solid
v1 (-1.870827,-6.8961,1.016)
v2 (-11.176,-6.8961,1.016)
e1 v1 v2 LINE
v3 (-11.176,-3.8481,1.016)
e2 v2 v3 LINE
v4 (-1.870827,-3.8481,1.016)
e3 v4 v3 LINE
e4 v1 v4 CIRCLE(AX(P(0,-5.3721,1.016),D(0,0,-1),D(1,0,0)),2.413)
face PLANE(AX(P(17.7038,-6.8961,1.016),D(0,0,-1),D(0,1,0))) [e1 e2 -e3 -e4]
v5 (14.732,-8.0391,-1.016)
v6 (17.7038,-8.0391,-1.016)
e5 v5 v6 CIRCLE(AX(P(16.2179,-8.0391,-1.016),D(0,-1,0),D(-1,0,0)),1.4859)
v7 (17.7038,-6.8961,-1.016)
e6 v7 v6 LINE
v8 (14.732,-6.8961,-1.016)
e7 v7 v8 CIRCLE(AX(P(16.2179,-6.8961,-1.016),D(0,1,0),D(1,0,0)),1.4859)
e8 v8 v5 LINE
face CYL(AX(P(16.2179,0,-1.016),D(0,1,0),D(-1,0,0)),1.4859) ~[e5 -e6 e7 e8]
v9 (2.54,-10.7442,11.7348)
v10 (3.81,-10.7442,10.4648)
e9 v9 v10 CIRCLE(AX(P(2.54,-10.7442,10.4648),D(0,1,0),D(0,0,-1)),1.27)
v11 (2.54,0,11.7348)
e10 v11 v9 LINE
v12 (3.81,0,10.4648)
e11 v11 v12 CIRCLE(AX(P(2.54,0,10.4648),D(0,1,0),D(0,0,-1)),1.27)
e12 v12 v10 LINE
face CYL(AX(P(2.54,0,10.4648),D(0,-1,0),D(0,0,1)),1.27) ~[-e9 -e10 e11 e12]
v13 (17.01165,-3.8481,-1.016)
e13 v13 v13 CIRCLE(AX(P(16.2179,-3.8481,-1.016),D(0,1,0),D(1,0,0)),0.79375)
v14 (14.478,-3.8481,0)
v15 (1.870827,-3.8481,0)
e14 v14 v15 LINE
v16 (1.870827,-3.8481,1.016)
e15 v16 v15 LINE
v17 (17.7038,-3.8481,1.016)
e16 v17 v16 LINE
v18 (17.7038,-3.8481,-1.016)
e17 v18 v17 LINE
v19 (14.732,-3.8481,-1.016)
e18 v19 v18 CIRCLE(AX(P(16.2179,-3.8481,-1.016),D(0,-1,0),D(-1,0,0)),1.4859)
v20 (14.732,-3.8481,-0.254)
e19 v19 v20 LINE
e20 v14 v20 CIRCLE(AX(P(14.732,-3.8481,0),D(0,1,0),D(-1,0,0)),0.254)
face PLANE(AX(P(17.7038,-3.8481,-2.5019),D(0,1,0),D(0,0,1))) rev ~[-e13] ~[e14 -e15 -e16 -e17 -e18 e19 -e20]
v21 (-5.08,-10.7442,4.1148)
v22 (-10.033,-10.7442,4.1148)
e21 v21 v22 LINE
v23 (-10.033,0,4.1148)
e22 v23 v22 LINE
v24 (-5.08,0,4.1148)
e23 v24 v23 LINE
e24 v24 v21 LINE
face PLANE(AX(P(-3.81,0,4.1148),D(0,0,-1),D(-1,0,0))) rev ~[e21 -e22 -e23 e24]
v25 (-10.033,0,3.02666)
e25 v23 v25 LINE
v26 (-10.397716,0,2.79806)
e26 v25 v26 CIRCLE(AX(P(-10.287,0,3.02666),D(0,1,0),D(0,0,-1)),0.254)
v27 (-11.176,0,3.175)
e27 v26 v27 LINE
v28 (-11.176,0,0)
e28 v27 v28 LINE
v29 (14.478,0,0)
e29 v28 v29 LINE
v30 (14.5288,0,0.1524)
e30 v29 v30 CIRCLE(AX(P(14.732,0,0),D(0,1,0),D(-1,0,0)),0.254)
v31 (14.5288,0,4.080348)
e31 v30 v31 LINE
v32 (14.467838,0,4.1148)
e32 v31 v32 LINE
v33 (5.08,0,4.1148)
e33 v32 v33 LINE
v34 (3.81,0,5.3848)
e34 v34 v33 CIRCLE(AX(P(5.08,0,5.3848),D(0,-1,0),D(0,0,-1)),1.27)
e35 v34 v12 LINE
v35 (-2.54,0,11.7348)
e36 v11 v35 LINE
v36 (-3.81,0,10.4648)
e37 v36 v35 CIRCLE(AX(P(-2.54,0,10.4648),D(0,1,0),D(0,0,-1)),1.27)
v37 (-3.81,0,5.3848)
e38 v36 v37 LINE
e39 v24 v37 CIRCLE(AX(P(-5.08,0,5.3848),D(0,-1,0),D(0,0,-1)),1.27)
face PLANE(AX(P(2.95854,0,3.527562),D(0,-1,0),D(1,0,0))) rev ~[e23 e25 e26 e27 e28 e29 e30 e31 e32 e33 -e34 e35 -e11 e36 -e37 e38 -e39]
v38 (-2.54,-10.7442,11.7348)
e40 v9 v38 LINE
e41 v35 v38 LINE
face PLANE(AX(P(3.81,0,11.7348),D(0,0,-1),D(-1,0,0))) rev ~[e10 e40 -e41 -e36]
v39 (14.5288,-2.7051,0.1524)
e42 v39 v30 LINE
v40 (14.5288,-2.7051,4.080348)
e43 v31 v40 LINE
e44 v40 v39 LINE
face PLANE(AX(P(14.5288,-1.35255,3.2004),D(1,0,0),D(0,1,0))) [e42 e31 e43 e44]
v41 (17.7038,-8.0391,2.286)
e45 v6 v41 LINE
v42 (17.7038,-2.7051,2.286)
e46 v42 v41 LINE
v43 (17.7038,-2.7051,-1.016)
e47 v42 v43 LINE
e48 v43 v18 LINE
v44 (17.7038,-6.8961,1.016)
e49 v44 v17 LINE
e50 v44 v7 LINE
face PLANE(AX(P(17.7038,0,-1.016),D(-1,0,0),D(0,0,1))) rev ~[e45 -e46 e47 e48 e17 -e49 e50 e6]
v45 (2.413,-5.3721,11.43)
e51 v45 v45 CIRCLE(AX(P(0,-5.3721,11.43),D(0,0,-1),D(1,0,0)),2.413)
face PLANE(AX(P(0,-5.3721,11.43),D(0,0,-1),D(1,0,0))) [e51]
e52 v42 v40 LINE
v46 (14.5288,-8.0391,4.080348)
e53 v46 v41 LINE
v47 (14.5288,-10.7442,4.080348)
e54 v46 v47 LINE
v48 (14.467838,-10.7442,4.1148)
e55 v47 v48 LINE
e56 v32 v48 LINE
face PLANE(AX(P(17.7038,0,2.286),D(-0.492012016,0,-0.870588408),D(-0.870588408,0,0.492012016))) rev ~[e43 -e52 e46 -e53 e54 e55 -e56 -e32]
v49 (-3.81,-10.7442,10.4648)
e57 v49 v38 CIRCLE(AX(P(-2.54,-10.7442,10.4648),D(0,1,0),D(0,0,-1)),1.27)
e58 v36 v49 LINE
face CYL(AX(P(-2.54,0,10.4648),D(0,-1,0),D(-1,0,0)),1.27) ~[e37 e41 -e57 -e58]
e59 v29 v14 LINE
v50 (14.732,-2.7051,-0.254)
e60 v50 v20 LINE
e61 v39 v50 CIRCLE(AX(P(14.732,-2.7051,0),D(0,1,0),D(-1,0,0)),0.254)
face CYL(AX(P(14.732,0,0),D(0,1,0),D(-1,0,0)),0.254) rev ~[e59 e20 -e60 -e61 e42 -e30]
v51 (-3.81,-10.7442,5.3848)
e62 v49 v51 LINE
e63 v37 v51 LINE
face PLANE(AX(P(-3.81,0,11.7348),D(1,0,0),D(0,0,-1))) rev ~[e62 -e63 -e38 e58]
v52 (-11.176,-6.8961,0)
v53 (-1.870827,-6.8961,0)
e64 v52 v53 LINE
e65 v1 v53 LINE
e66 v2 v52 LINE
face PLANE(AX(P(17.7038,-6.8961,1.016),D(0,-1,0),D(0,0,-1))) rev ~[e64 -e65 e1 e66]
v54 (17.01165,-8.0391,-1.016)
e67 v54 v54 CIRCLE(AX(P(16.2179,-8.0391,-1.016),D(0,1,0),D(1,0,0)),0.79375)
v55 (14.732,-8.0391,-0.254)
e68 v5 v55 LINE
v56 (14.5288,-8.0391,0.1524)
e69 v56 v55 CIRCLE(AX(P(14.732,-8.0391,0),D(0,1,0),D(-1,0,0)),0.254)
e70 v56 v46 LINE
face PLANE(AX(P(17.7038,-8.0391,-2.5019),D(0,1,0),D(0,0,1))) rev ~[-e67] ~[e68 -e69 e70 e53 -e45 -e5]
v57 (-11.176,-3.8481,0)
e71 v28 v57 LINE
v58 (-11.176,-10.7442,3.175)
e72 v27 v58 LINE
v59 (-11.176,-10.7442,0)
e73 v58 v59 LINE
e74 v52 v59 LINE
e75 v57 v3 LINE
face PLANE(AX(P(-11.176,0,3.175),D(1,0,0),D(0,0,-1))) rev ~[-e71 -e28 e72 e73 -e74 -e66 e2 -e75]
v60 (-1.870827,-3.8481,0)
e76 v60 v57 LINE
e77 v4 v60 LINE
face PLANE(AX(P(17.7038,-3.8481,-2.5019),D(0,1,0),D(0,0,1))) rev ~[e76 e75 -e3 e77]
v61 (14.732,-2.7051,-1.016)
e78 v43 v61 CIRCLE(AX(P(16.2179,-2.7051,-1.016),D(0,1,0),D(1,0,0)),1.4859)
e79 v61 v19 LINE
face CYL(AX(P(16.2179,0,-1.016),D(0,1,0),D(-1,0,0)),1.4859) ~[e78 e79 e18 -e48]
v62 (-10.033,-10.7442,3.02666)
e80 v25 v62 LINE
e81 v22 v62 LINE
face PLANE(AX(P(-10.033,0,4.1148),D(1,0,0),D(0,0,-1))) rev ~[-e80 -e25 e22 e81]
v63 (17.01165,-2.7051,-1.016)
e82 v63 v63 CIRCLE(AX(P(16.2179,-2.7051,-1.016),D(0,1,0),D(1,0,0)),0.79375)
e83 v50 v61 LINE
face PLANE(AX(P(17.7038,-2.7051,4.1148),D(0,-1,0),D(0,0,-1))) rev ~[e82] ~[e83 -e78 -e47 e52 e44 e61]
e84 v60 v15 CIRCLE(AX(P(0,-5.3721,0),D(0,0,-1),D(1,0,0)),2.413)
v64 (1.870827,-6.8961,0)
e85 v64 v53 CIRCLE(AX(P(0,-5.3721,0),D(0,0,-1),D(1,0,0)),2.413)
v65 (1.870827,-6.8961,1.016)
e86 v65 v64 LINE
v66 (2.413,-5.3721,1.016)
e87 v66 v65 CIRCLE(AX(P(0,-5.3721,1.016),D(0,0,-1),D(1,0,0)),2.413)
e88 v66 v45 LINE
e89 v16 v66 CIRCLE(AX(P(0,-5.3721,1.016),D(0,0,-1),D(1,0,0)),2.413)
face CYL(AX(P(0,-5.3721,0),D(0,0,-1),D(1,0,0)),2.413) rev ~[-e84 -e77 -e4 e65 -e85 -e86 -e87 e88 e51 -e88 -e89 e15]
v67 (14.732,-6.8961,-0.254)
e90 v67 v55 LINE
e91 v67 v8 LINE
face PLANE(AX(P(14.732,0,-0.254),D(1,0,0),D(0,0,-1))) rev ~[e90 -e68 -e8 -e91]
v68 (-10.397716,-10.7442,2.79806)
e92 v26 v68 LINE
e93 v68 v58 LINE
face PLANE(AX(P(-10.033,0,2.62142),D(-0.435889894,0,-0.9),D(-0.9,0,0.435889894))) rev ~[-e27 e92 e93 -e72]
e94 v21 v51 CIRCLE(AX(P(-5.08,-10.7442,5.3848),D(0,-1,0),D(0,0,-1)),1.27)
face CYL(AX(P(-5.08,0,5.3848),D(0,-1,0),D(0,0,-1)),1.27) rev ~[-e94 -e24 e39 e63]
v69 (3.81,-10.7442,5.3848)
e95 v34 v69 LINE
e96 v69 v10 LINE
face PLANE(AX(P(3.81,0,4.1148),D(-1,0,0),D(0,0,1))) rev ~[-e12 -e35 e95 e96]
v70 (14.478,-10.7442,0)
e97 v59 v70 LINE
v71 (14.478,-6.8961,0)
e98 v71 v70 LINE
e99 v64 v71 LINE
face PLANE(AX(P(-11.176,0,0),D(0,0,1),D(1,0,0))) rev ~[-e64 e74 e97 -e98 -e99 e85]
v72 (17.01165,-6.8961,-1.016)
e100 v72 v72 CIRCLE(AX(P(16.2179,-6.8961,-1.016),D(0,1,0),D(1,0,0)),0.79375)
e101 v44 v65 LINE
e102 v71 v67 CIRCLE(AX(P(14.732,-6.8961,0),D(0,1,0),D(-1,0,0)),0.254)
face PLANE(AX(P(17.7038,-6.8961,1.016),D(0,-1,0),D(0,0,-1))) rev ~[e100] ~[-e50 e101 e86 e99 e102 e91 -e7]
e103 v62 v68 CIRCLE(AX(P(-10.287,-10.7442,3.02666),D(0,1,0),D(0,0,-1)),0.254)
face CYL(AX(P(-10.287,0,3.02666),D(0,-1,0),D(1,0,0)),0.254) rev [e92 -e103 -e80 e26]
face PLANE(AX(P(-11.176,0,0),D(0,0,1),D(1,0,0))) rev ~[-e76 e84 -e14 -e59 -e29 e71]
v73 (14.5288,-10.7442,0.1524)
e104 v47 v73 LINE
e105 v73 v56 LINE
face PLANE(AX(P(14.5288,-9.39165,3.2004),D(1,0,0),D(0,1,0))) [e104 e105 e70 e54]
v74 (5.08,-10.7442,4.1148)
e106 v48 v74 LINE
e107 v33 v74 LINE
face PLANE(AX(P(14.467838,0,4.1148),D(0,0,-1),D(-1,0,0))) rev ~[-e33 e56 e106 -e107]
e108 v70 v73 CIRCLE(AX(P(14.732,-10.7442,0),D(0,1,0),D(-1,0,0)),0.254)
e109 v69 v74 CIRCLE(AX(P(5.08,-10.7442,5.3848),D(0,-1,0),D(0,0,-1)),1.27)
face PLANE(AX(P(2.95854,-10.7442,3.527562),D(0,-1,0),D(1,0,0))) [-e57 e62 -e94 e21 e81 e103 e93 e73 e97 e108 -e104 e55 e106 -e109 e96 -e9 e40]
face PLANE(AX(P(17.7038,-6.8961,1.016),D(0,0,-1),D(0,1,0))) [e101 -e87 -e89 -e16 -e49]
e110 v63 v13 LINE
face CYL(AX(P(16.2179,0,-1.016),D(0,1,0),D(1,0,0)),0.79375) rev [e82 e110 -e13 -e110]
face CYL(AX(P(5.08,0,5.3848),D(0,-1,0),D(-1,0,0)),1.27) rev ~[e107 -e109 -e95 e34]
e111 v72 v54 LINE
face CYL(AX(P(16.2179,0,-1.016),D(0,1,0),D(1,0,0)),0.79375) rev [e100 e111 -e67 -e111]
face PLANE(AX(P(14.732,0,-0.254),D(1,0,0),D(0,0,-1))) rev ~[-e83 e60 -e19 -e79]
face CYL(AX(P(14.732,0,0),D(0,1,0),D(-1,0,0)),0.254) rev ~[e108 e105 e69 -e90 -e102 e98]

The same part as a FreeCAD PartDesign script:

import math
import FreeCAD as App
import Part
import Sketcher
from FreeCAD import Vector
Q = App.Units.Quantity


def edges_at(feature, points):
    """Names of the edges that pass closest to the given points."""
    edges = feature.Shape.Edges
    near = lambda p: min(range(len(edges)), key=lambda i: edges[i].distToShape(Part.Vertex(*p))[0])
    return sorted({f"Edge{near(p) + 1}" for p in points})


def add_polygon(sketch, points):
    """Adds a closed chain of lines whose ends are joined by coincident constraints."""
    first, n = sketch.GeometryCount, len(points)
    for a, b in zip(points, points[1:] + points[:1]):
        sketch.addGeometry(Part.LineSegment(App.Vector(*a, 0), App.Vector(*b, 0)), False)
    for i in range(n):
        sketch.addConstraint(Sketcher.Constraint("Coincident", first + i, 2, first + (i + 1) % n, 1))

doc = App.newDocument("Part")
body = doc.addObject("PartDesign::Body", "Body")

sketch1 = body.newObject("Sketcher::SketchObject", "Sketch")
sketch1.AttachmentSupport = (doc.getObject("XZ_Plane"), [""])
sketch1.MapMode = "FlatFace"
sketch1.addGeometry([
    Part.LineSegment(Vector(-11.176, 3.175, 0), Vector(-11.176, 0, 0)),
    Part.LineSegment(Vector(-11.176, 0, 0), Vector(14.478, 0, 0)),
    Part.ArcOfCircle(Part.Circle(Vector(14.732, 0, 0), Vector(0, 0, 1), 0.254), math.radians(-90), math.radians(180)),
    Part.LineSegment(Vector(14.732, -0.254, 0), Vector(14.732, -1.016, 0)),
    Part.ArcOfCircle(Part.Circle(Vector(16.2179, -1.016, 0), Vector(0, 0, 1), 1.4859), math.radians(180), math.radians(360)),
    Part.LineSegment(Vector(17.7038, -1.016, 0), Vector(17.7038, 2.286, 0)),
    Part.LineSegment(Vector(17.7038, 2.286, 0), Vector(14.467838, 4.1148, 0)),
    Part.LineSegment(Vector(14.467838, 4.1148, 0), Vector(3.81, 4.1148, 0)),
    Part.LineSegment(Vector(3.81, 4.1148, 0), Vector(3.81, 11.7348, 0)),
    Part.LineSegment(Vector(3.81, 11.7348, 0), Vector(-3.81, 11.7348, 0)),
    Part.LineSegment(Vector(-3.81, 11.7348, 0), Vector(-3.81, 4.1148, 0)),
    Part.LineSegment(Vector(-3.81, 4.1148, 0), Vector(-10.033, 4.1148, 0)),
    Part.LineSegment(Vector(-10.033, 4.1148, 0), Vector(-10.033, 2.62142, 0)),
    Part.LineSegment(Vector(-10.033, 2.62142, 0), Vector(-11.176, 3.175, 0)),
    Part.Circle(Vector(16.2179, -1.016, 0), Vector(0, 0, 1), 0.79375),
], False)
sketch1.addConstraint([
    Sketcher.Constraint("Coincident", 0, 2, 1, 1),
    Sketcher.Constraint("Coincident", 1, 2, 2, 2),
    Sketcher.Constraint("Coincident", 2, 1, 3, 1),
    Sketcher.Constraint("Tangent", 3, 2, 4, 1),
    Sketcher.Constraint("Tangent", 4, 2, 5, 1),
    Sketcher.Constraint("Coincident", 5, 2, 6, 1),
    Sketcher.Constraint("Coincident", 6, 2, 7, 1),
    Sketcher.Constraint("Coincident", 7, 2, 8, 1),
    Sketcher.Constraint("Coincident", 8, 2, 9, 1),
    Sketcher.Constraint("Coincident", 9, 2, 10, 1),
    Sketcher.Constraint("Coincident", 10, 2, 11, 1),
    Sketcher.Constraint("Coincident", 11, 2, 12, 1),
    Sketcher.Constraint("Coincident", 12, 2, 13, 1),
    Sketcher.Constraint("Coincident", 13, 2, 0, 1),
    Sketcher.Constraint("Vertical", 0),
    Sketcher.Constraint("Horizontal", 1),
    Sketcher.Constraint("Vertical", 3),
    Sketcher.Constraint("Vertical", 5),
    Sketcher.Constraint("Horizontal", 7),
    Sketcher.Constraint("Vertical", 8),
    Sketcher.Constraint("Horizontal", 9),
    Sketcher.Constraint("Vertical", 10),
    Sketcher.Constraint("Horizontal", 11),
    Sketcher.Constraint("Vertical", 12),
    Sketcher.Constraint("Coincident", 14, 3, 4, 3),
    Sketcher.Constraint("Symmetric", 7, 2, 10, 2, -2),
    Sketcher.Constraint("PointOnObject", 2, 3, -1),
    Sketcher.Constraint("PointOnObject", 0, 2, -1),
    Sketcher.Constraint("Equal", 9, 8),
    Sketcher.Constraint("Radius", 2, Q("0.01 in")),
    Sketcher.Constraint("Diameter", 14, Q("0.0625 in")),
    Sketcher.Constraint("DistanceX", 9, 2, 9, 1, Q("0.3 in")),
    Sketcher.Constraint("DistanceX", 1, 1, 1, 2, Q("1.01 in")),
    Sketcher.Constraint("DistanceY", 3, 2, 3, 1, Q("0.03 in")),
    Sketcher.Constraint("DistanceY", 5, 1, 5, 2, Q("0.13 in")),
    Sketcher.Constraint("Radius", 4, Q("0.0585 in")),
    Sketcher.Constraint("Distance", 13, Q("0.05 in")),
    Sketcher.Constraint("DistanceX", 11, 2, 11, 1, Q("0.245 in")),
    Sketcher.Constraint("DistanceY", 0, 2, 0, 1, Q("0.125 in")),
    Sketcher.Constraint("DistanceX", -1, 1, 2, 3, Q("0.58 in")),
    Sketcher.Constraint("DistanceX", -1, 1, 2, 1, Q("0.58 in")),
    Sketcher.Constraint("DistanceX", 7, 2, 7, 1, Q("0.4195999 in")),
    Sketcher.Constraint("DistanceY", -1, 1, 6, 2, Q("0.162 in")),
])
pad1 = body.newObject("PartDesign::Pad", "Pad")
pad1.Profile = sketch1
pad1.Length = Q("0.423 in")

sketch2 = body.newObject("Sketcher::SketchObject", "Sketch001")
sketch2.AttachmentSupport = (doc.getObject("YZ_Plane"), [""])
sketch2.MapMode = "FlatFace"
sketch2.AttachmentOffset = App.Placement(Vector(0, 0, 0.697 * 25.4), App.Rotation())
add_polygon(sketch2, [(-10.7442, 4.1148), (-10.7442, -2.5019), (-8.0391, -2.5019), (-8.0391, 4.1148)])
add_polygon(sketch2, [(-2.7051, 4.1148), (-2.7051, -2.5019), (0, -2.5019), (0, 4.1148)])
sketch2.addConstraint([
    Sketcher.Constraint("Vertical", 0),
    Sketcher.Constraint("Horizontal", 1),
    Sketcher.Constraint("Vertical", 2),
    Sketcher.Constraint("Horizontal", 3),
    Sketcher.Constraint("Vertical", 4),
    Sketcher.Constraint("Horizontal", 5),
    Sketcher.Constraint("Vertical", 6),
    Sketcher.Constraint("Horizontal", 7),
    Sketcher.Constraint("PointOnObject", 5, 2, -2),
    Sketcher.Constraint("Horizontal", 1, 2, 4, 2),
    Sketcher.Constraint("Horizontal", 3, 2, 6, 2),
    Sketcher.Constraint("Equal", 3, 5),
    Sketcher.Constraint("DistanceX", 1, 2, 4, 2, Q("0.21 in")),
    Sketcher.Constraint("DistanceX", 1, 1, 1, 2, Q("0.1065 in")),
    Sketcher.Constraint("DistanceY", 0, 2, 0, 1, Q("0.2605 in")),
    Sketcher.Constraint("DistanceY", -1, 1, 2, 2, Q("0.162 in")),
])
pocket1 = body.newObject("PartDesign::Pocket", "Pocket")
pocket1.Profile = sketch2
pocket1.Length = Q("0.125 in")

sketch3 = body.newObject("Sketcher::SketchObject", "Sketch002")
sketch3.AttachmentSupport = (doc.getObject("XY_Plane"), [""])
sketch3.MapMode = "FlatFace"
sketch3.addGeometry(Part.Circle(Vector(0, -5.3721, 0), Vector(0, 0, 1), 2.413), False)
sketch3.addConstraint([
    Sketcher.Constraint("PointOnObject", 0, 3, -2),
    Sketcher.Constraint("Diameter", 0, Q("0.19 in")),
    Sketcher.Constraint("DistanceY", 0, 3, -1, 1, Q("0.2115 in")),
])
pocket2 = body.newObject("PartDesign::Pocket", "Pocket001")
pocket2.Profile = sketch3
pocket2.Length = Q("0.45 in")
pocket2.Reversed = True
doc.recompute()

fillet = body.newObject("PartDesign::Fillet", "Fillet")
fillet.Base = (pocket2, edges_at(pocket2, [
    (-3.81, -5.372, 4.115),
    (3.81, -5.372, 4.115),
    (-3.81, -5.372, 11.735),
    (3.81, -5.372, 11.735),
]))
fillet.Radius = Q("0.05 in")
doc.recompute()

fillet2 = body.newObject("PartDesign::Fillet", "Fillet001")
fillet2.Base = (fillet, edges_at(fillet, [(-10.033, -5.372, 2.621)]))
fillet2.Radius = Q("0.01 in")

sketch4 = body.newObject("Sketcher::SketchObject", "Sketch003")
sketch4.AttachmentSupport = (doc.getObject("YZ_Plane"), [""])
sketch4.MapMode = "FlatFace"
sketch4.AttachmentOffset = App.Placement(Vector(0, 0, 0.697 * 25.4), App.Rotation())
add_polygon(sketch4, [(-6.8961, 1.016), (-6.8961, -2.5019), (-3.8481, -2.5019), (-3.8481, 1.016)])
sketch4.addConstraint([
    Sketcher.Constraint("Vertical", 0),
    Sketcher.Constraint("Horizontal", 1),
    Sketcher.Constraint("Vertical", 2),
    Sketcher.Constraint("Horizontal", 3),
    Sketcher.Constraint("DistanceX", 1, 1, 1, 2, Q("0.12 in")),
    Sketcher.Constraint("DistanceY", -1, 1, 2, 2, Q("0.04 in")),
    Sketcher.Constraint("DistanceY", 0, 2, 0, 1, Q("0.1385 in")),
    Sketcher.Constraint("DistanceX", 0, 2, -1, 1, Q("0.2715 in")),
])
pocket3 = body.newObject("PartDesign::Pocket", "Pocket002")
pocket3.Profile = sketch4
pocket3.Type = "ThroughAll"

doc.recompute()
